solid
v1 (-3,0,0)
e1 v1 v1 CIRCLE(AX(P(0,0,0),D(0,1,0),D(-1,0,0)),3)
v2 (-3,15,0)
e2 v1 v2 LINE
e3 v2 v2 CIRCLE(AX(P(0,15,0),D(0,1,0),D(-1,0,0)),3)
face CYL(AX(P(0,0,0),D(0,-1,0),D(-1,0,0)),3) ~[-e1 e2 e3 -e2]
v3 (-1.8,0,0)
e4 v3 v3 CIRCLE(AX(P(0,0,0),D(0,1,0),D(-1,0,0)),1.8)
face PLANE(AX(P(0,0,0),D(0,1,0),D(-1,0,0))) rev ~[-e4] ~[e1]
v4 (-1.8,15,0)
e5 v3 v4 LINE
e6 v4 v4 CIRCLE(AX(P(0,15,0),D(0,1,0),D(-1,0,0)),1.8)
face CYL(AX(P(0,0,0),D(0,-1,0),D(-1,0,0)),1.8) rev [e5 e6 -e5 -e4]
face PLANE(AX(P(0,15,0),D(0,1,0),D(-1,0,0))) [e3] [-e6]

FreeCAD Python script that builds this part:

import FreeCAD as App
import Part
import Sketcher

V = App.Vector

doc = App.newDocument("Part")
body = doc.addObject("PartDesign::Body", "Body")

# Sketch on XZ plane
sketch1 = doc.addObject("Sketcher::SketchObject", "Sketch")
body.addObject(sketch1)
sketch1.AttachmentSupport = (doc.XZ_Plane, [""])
sketch1.MapMode = "FlatFace"
sketch1.addGeometry([
    Part.Circle(V(0, 0, 0), V(0, 0, 1), 3),
    Part.Circle(V(0, 0, 0), V(0, 0, 1), 1.8),
], False)
sketch1.addConstraint([
    Sketcher.Constraint("Coincident", 0, 3, -1, 1),
    Sketcher.Constraint("Coincident", 1, 3, -1, 1),
    Sketcher.Constraint("Diameter", 0, 6.0),
    Sketcher.Constraint("Diameter", 1, 3.6),
])
pad1 = doc.addObject("PartDesign::Pad", "Pad")
body.addObject(pad1)
pad1.Profile = sketch1
pad1.Length = 15
pad1.Reversed = True

doc.recompute()
